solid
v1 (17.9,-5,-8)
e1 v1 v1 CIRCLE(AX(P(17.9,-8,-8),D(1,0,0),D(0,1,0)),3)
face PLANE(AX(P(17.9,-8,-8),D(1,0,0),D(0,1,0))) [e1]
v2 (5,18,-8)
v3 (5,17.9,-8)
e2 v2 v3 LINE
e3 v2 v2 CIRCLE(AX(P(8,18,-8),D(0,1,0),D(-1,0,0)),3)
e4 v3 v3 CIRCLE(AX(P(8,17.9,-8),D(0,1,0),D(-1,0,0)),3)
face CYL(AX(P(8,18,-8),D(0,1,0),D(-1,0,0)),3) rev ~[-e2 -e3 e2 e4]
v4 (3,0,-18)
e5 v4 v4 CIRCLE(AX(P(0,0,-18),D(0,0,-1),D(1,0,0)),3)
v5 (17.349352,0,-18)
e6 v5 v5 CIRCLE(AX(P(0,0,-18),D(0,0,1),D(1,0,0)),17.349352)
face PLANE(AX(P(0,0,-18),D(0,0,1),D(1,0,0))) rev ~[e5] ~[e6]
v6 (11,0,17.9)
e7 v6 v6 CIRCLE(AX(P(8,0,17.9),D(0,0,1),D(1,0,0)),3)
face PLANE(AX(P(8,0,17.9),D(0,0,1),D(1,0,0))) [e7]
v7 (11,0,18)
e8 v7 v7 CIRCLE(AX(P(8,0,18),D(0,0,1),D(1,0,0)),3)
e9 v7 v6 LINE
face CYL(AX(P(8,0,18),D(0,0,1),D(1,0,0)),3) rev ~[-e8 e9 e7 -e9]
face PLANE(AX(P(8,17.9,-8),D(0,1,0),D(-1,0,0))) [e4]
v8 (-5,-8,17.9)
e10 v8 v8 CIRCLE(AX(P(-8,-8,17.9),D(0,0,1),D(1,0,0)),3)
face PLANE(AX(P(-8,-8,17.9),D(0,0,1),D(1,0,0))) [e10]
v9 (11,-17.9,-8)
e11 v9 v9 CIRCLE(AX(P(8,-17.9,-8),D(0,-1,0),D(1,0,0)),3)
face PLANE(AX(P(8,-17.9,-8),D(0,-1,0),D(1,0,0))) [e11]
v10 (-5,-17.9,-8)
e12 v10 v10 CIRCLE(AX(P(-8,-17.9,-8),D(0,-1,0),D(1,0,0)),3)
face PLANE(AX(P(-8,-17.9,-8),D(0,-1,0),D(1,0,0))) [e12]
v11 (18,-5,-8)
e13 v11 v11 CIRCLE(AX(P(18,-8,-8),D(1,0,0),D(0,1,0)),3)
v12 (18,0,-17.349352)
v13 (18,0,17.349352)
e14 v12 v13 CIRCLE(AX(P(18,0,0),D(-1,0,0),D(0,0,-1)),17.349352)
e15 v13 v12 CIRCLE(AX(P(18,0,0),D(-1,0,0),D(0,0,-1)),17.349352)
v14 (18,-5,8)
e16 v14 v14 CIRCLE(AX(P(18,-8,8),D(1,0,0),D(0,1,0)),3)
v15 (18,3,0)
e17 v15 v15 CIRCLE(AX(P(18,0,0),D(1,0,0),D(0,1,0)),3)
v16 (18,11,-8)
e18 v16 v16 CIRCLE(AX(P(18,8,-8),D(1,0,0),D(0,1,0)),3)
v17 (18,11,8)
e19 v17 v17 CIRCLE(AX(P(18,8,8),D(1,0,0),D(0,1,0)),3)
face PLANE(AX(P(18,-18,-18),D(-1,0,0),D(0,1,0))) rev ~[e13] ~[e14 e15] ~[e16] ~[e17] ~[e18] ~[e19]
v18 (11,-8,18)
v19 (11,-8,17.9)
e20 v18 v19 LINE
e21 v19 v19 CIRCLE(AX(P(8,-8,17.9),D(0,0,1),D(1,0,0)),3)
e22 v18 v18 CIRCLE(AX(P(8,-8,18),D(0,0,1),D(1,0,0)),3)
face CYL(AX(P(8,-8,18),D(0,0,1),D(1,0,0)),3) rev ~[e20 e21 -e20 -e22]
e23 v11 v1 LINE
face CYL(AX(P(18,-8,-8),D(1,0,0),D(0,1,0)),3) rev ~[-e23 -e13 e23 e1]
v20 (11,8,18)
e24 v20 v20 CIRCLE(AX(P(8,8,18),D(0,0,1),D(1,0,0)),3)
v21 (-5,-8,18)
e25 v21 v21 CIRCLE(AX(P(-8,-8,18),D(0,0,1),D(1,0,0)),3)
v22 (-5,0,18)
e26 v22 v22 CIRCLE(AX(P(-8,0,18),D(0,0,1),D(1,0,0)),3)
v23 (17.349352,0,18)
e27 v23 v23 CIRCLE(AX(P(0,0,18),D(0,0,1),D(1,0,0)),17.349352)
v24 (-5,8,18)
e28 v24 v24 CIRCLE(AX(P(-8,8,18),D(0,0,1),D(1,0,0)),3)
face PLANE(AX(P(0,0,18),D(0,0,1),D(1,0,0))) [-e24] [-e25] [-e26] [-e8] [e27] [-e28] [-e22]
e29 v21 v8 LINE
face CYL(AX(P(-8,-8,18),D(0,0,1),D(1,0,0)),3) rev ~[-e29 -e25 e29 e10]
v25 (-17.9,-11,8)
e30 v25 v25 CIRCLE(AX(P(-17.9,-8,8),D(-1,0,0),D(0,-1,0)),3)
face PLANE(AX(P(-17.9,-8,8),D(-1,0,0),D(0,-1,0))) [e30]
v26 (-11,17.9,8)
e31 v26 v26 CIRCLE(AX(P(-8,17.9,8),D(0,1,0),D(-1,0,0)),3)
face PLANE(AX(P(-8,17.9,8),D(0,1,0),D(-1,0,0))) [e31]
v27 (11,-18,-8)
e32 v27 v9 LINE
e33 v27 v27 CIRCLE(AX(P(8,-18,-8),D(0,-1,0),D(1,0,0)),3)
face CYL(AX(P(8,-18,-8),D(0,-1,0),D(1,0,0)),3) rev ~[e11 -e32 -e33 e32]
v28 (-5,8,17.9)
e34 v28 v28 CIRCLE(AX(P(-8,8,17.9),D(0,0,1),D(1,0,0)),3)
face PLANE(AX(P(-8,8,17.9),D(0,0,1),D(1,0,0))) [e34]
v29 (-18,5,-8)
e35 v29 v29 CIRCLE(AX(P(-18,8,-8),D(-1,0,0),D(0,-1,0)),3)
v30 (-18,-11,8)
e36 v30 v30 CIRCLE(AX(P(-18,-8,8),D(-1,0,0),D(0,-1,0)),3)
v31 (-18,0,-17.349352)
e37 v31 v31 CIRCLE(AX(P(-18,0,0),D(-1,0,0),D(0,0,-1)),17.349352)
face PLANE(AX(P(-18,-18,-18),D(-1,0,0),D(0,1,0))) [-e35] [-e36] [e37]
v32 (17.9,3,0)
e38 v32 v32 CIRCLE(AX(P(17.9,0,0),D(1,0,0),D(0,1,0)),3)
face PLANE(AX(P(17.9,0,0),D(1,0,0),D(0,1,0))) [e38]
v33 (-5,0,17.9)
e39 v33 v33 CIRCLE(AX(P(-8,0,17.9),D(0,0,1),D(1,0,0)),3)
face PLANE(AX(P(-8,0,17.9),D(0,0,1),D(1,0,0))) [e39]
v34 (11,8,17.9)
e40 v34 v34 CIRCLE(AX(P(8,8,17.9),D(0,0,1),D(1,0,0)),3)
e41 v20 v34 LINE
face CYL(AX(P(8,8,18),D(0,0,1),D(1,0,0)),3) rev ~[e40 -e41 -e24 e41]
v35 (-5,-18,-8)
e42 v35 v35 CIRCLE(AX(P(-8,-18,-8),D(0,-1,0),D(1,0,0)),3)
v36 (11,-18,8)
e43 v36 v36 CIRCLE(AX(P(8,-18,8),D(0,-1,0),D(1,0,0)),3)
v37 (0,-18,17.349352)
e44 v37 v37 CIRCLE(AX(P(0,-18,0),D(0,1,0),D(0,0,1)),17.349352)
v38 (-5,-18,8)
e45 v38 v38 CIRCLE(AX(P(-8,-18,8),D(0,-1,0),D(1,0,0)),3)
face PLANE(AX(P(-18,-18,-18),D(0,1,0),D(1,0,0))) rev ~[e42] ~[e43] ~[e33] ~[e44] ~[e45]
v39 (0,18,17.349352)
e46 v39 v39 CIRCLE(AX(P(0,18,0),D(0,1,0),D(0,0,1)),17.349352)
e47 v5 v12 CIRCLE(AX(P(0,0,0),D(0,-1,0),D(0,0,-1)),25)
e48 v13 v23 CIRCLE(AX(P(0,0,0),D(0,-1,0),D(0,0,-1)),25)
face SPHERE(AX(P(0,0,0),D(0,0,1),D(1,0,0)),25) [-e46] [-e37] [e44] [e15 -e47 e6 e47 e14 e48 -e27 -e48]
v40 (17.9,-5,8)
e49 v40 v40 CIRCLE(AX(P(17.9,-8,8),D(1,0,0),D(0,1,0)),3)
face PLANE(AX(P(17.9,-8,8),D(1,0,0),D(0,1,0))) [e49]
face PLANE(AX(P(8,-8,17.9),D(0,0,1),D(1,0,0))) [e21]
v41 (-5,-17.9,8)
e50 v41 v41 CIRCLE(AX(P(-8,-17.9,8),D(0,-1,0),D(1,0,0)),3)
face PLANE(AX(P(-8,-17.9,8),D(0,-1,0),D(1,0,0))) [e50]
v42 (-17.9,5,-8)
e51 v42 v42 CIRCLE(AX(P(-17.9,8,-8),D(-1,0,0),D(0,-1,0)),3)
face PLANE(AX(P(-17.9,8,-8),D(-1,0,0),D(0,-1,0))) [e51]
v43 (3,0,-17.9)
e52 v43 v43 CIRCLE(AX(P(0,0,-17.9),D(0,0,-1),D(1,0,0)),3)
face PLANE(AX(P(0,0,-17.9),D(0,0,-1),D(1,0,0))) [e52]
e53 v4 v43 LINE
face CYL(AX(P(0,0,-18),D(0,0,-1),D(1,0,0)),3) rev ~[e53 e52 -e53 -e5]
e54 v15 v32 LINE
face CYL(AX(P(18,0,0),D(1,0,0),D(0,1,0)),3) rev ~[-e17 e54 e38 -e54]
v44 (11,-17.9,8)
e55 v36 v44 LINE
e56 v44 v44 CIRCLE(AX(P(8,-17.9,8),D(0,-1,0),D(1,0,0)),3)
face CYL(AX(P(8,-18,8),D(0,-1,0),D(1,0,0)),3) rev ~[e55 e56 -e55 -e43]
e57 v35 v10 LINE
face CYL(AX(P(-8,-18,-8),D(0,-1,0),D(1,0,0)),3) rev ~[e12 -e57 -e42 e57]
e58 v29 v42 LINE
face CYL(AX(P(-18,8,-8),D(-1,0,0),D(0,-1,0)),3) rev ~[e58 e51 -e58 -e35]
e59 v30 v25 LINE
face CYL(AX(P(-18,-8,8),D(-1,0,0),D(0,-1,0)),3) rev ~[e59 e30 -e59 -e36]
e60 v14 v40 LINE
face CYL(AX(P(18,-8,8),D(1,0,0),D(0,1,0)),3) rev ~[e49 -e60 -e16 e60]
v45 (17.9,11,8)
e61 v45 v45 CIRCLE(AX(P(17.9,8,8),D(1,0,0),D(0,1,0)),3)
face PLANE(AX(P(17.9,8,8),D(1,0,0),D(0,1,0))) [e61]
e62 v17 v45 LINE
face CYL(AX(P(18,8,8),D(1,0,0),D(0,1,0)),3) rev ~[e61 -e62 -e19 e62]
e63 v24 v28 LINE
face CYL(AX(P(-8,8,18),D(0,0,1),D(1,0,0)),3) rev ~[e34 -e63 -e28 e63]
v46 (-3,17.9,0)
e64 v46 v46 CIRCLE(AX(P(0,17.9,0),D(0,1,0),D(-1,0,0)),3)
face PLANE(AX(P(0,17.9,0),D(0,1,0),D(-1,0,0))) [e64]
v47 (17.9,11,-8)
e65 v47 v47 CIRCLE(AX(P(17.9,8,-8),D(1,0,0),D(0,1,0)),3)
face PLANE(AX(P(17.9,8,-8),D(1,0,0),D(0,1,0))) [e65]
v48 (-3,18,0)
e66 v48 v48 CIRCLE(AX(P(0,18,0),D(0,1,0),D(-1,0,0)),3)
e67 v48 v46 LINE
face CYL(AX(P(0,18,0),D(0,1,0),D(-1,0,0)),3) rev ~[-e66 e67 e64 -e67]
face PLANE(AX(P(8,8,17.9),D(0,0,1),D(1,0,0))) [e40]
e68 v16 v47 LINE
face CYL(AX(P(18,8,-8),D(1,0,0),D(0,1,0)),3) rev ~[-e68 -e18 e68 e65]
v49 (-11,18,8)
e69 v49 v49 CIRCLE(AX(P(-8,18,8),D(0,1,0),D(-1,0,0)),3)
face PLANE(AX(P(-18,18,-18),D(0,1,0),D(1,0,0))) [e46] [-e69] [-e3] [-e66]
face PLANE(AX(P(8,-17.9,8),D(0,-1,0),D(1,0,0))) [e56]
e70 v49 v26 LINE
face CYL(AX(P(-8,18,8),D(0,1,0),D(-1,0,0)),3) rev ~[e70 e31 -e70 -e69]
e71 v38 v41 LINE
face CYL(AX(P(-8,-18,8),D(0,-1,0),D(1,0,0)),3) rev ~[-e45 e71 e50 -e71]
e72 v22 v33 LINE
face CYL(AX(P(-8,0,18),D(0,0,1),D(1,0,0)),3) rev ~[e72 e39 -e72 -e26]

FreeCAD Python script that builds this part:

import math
import FreeCAD as App
import Part
import Sketcher

V = App.Vector

doc = App.newDocument("Part")
body = doc.addObject("PartDesign::Body", "Body")

# Sketch on XZ plane
sketch1 = body.newObject("Sketcher::SketchObject", "Sketch")
sketch1.AttachmentSupport = (doc.getObject("XZ_Plane"), [""])
sketch1.MapMode = "FlatFace"
sketch1.addGeometry([
    Part.ArcOfCircle(Part.Circle(V(0, 0, 0), V(0, 0, 1), 25), math.radians(-90), math.radians(90)),
    Part.LineSegment(V(0, 25, 0), V(0, -25, 0)),
], False)
sketch1.addConstraint([
    Sketcher.Constraint("Coincident", 0, 1, 1, 2),
    Sketcher.Constraint("Coincident", 1, 1, 0, 2),
    Sketcher.Constraint("Vertical", 1),
    Sketcher.Constraint("Coincident", 0, 3, -1, 1),
    Sketcher.Constraint("PointOnObject", 0, 1, -2),
    Sketcher.Constraint("Radius", 0, 25.0),
])
revolution = body.newObject("PartDesign::Revolution", "Revolution")
revolution.Profile = sketch1
revolution.ReferenceAxis = (sketch1, ["V_Axis"])
revolution.Angle = 360
body2 = doc.addObject("PartDesign::Body", "Body001")

# Sketch on XY plane
sketch2 = body2.newObject("Sketcher::SketchObject", "Sketch001")
sketch2.AttachmentSupport = (doc.getObject("XY_Plane001"), [""])
sketch2.MapMode = "FlatFace"
sketch2.AttachmentOffset = App.Placement(V(0, 0, -18), App.Rotation())
sketch2.addGeometry([
    Part.LineSegment(V(-18, 18, 0), V(-18, -18, 0)),
    Part.LineSegment(V(-18, -18, 0), V(18, -18, 0)),
    Part.LineSegment(V(18, -18, 0), V(18, 18, 0)),
    Part.LineSegment(V(18, 18, 0), V(-18, 18, 0)),
], False)
sketch2.addConstraint([
    Sketcher.Constraint("Coincident", 0, 2, 1, 1),
    Sketcher.Constraint("Coincident", 1, 2, 2, 1),
    Sketcher.Constraint("Coincident", 2, 2, 3, 1),
    Sketcher.Constraint("Coincident", 3, 2, 0, 1),
    Sketcher.Constraint("Vertical", 0),
    Sketcher.Constraint("Horizontal", 1),
    Sketcher.Constraint("Vertical", 2),
    Sketcher.Constraint("Horizontal", 3),
    Sketcher.Constraint("Symmetric", 0, 2, 2, 2, -1, 1),
    Sketcher.Constraint("Equal", 3, 0),
    Sketcher.Constraint("DistanceX", 1, 1, 1, 2, 36.0),
])
pad1 = body2.newObject("PartDesign::Pad", "Pad")
pad1.Profile = sketch2
pad1.Length = 36
doc.recompute()

boolean = body2.newObject("PartDesign::Boolean", "Boolean")
boolean.Type = "Common"
boolean.addObjects([body])

# Sketch on XY plane
sketch3 = body2.newObject("Sketcher::SketchObject", "Sketch002")
sketch3.AttachmentSupport = (doc.getObject("XY_Plane001"), [""])
sketch3.MapMode = "FlatFace"
sketch3.AttachmentOffset = App.Placement(V(0, 0, 18), App.Rotation())
sketch3.addGeometry([
    Part.Circle(V(-8, 8, 0), V(0, 0, 1), 3),  # 0
    Part.Circle(V(-8, 0, 0), V(0, 0, 1), 3),  # 1
    Part.Circle(V(-8, -8, 0), V(0, 0, 1), 3),  # 2
    Part.Circle(V(8, 8, 0), V(0, 0, 1), 3),  # 3
    Part.Circle(V(8, 0, 0), V(0, 0, 1), 3),  # 4
    Part.Circle(V(8, -8, 0), V(0, 0, 1), 3),  # 5
], False)
sketch3.addConstraint([
    Sketcher.Constraint("Equal", 0, 1),
    Sketcher.Constraint("Equal", 1, 2),
    Sketcher.Constraint("Equal", 2, 3),
    Sketcher.Constraint("Equal", 3, 4),
    Sketcher.Constraint("Equal", 4, 5),
    Sketcher.Constraint("Symmetric", 2, 3, 3, 3, -1, 1),
    Sketcher.Constraint("Symmetric", 1, 3, 4, 3, -1, 1),
    Sketcher.Constraint("Symmetric", 0, 3, 5, 3, -1, 1),
    Sketcher.Constraint("Symmetric", 0, 3, 3, 3, -2),
    Sketcher.Constraint("PointOnObject", 1, 3, -1),
    Sketcher.Constraint("Vertical", 0, 3, 1, 3),
    Sketcher.Constraint("Diameter", 0, 6.0),
    Sketcher.Constraint("DistanceX", 0, 3, -1, 1, 8.0),
    Sketcher.Constraint("DistanceY", -1, 1, 0, 3, 8.0),
])
pocket1 = body2.newObject("PartDesign::Pocket", "Pocket")
pocket1.Profile = sketch3
pocket1.Length = 0.1

# Sketch on YZ plane
sketch4 = body2.newObject("Sketcher::SketchObject", "Sketch003")
sketch4.AttachmentSupport = (doc.getObject("YZ_Plane001"), [""])
sketch4.MapMode = "FlatFace"
sketch4.AttachmentOffset = App.Placement(V(0, 0, 18), App.Rotation())
sketch4.addGeometry([
    Part.Circle(V(-8, 8, 0), V(0, 0, 1), 3),  # 0
    Part.Circle(V(8, 8, 0), V(0, 0, 1), 3),  # 1
    Part.Circle(V(-8, -8, 0), V(0, 0, 1), 3),  # 2
    Part.Circle(V(8, -8, 0), V(0, 0, 1), 3),  # 3
    Part.Circle(V(0, 0, 0), V(0, 0, 1), 3),  # 4
], False)
sketch4.addConstraint([
    Sketcher.Constraint("Coincident", 4, 3, -1, 1),
    Sketcher.Constraint("Equal", 0, 1),
    Sketcher.Constraint("Equal", 1, 2),
    Sketcher.Constraint("Equal", 2, 3),
    Sketcher.Constraint("Equal", 3, 4),
    Sketcher.Constraint("Symmetric", 1, 3, 2, 3, -1, 1),
    Sketcher.Constraint("Symmetric", 0, 3, 3, 3, -1, 1),
    Sketcher.Constraint("Symmetric", 0, 3, 1, 3, -2),
    Sketcher.Constraint("Diameter", 0, 6.0),
    Sketcher.Constraint("DistanceX", 0, 3, -1, 1, 8.0),
    Sketcher.Constraint("DistanceY", -1, 1, 0, 3, 8.0),
])
pocket2 = body2.newObject("PartDesign::Pocket", "Pocket001")
pocket2.Profile = sketch4
pocket2.Length = 0.1

# Sketch on XZ plane
sketch5 = body2.newObject("Sketcher::SketchObject", "Sketch004")
sketch5.AttachmentSupport = (doc.getObject("XZ_Plane001"), [""])
sketch5.MapMode = "FlatFace"
sketch5.AttachmentOffset = App.Placement(V(0, 0, 18), App.Rotation())
sketch5.addGeometry([
    Part.Circle(V(-8, 8, 0), V(0, 0, 1), 3),
    Part.Circle(V(-8, -8, 0), V(0, 0, 1), 3),
    Part.Circle(V(8, 8, 0), V(0, 0, 1), 3),
    Part.Circle(V(8, -8, 0), V(0, 0, 1), 3),
], False)
sketch5.addConstraint([
    Sketcher.Constraint("Equal", 0, 1),
    Sketcher.Constraint("Equal", 1, 2),
    Sketcher.Constraint("Equal", 2, 3),
    Sketcher.Constraint("Symmetric", 1, 3, 2, 3, -1, 1),
    Sketcher.Constraint("Symmetric", 0, 3, 3, 3, -1, 1),
    Sketcher.Constraint("Symmetric", 0, 3, 2, 3, -2),
    Sketcher.Constraint("Diameter", 0, 6.0),
    Sketcher.Constraint("DistanceX", 0, 3, -1, 1, 8.0),
    Sketcher.Constraint("DistanceY", -1, 1, 0, 3, 8.0),
])
pocket3 = body2.newObject("PartDesign::Pocket", "Pocket002")
pocket3.Profile = sketch5
pocket3.Length = 0.1

# Sketch on XZ plane
sketch6 = body2.newObject("Sketcher::SketchObject", "Sketch005")
sketch6.AttachmentSupport = (doc.getObject("XZ_Plane001"), [""])
sketch6.MapMode = "FlatFace"
sketch6.AttachmentOffset = App.Placement(V(0, 0, -18), App.Rotation())
sketch6.addGeometry([
    Part.Circle(V(-8, 8, 0), V(0, 0, 1), 3),
    Part.Circle(V(0, 0, 0), V(0, 0, 1), 3),
    Part.Circle(V(8, -8, 0), V(0, 0, 1), 3),
], False)
sketch6.addConstraint([
    Sketcher.Constraint("Coincident", 1, 3, -1, 1),
    Sketcher.Constraint("Equal", 0, 1),
    Sketcher.Constraint("Equal", 1, 2),
    Sketcher.Constraint("Symmetric", 0, 3, 2, 3, -1, 1),
    Sketcher.Constraint("Diameter", 0, 6.0),
    Sketcher.Constraint("DistanceX", 0, 3, -1, 1, 8.0),
    Sketcher.Constraint("DistanceY", -1, 1, 0, 3, 8.0),
])
pocket4 = body2.newObject("PartDesign::Pocket", "Pocket003")
pocket4.Profile = sketch6
pocket4.Length = 0.1
pocket4.Reversed = True

# Sketch on YZ plane
sketch7 = body2.newObject("Sketcher::SketchObject", "Sketch006")
sketch7.AttachmentSupport = (doc.getObject("YZ_Plane001"), [""])
sketch7.MapMode = "FlatFace"
sketch7.AttachmentOffset = App.Placement(V(0, 0, -18), App.Rotation())
sketch7.addGeometry([
    Part.Circle(V(-8, 8, 0), V(0, 0, 1), 3),
    Part.Circle(V(8, -8, 0), V(0, 0, 1), 3),
], False)
sketch7.addConstraint([
    Sketcher.Constraint("Equal", 0, 1),
    Sketcher.Constraint("Symmetric", 0, 3, 1, 3, -1, 1),
    Sketcher.Constraint("Diameter", 0, 6.0),
    Sketcher.Constraint("DistanceX", 0, 3, -1, 1, 8.0),
    Sketcher.Constraint("DistanceY", -1, 1, 0, 3, 8.0),
])
pocket5 = body2.newObject("PartDesign::Pocket", "Pocket004")
pocket5.Profile = sketch7
pocket5.Length = 0.1
pocket5.Reversed = True

# Sketch on XY plane
sketch8 = body2.newObject("Sketcher::SketchObject", "Sketch007")
sketch8.AttachmentSupport = (doc.getObject("XY_Plane001"), [""])
sketch8.MapMode = "FlatFace"
sketch8.AttachmentOffset = App.Placement(V(0, 0, -18), App.Rotation())
sketch8.addGeometry(Part.Circle(V(0, 0, 0), V(0, 0, 1), 3), False)
sketch8.addConstraint([
    Sketcher.Constraint("Coincident", 0, 3, -1, 1),
    Sketcher.Constraint("Diameter", 0, 6.0),
])
pocket6 = body2.newObject("PartDesign::Pocket", "Pocket005")
pocket6.Profile = sketch8
pocket6.Length = 0.1
pocket6.Reversed = True

doc.recompute()
